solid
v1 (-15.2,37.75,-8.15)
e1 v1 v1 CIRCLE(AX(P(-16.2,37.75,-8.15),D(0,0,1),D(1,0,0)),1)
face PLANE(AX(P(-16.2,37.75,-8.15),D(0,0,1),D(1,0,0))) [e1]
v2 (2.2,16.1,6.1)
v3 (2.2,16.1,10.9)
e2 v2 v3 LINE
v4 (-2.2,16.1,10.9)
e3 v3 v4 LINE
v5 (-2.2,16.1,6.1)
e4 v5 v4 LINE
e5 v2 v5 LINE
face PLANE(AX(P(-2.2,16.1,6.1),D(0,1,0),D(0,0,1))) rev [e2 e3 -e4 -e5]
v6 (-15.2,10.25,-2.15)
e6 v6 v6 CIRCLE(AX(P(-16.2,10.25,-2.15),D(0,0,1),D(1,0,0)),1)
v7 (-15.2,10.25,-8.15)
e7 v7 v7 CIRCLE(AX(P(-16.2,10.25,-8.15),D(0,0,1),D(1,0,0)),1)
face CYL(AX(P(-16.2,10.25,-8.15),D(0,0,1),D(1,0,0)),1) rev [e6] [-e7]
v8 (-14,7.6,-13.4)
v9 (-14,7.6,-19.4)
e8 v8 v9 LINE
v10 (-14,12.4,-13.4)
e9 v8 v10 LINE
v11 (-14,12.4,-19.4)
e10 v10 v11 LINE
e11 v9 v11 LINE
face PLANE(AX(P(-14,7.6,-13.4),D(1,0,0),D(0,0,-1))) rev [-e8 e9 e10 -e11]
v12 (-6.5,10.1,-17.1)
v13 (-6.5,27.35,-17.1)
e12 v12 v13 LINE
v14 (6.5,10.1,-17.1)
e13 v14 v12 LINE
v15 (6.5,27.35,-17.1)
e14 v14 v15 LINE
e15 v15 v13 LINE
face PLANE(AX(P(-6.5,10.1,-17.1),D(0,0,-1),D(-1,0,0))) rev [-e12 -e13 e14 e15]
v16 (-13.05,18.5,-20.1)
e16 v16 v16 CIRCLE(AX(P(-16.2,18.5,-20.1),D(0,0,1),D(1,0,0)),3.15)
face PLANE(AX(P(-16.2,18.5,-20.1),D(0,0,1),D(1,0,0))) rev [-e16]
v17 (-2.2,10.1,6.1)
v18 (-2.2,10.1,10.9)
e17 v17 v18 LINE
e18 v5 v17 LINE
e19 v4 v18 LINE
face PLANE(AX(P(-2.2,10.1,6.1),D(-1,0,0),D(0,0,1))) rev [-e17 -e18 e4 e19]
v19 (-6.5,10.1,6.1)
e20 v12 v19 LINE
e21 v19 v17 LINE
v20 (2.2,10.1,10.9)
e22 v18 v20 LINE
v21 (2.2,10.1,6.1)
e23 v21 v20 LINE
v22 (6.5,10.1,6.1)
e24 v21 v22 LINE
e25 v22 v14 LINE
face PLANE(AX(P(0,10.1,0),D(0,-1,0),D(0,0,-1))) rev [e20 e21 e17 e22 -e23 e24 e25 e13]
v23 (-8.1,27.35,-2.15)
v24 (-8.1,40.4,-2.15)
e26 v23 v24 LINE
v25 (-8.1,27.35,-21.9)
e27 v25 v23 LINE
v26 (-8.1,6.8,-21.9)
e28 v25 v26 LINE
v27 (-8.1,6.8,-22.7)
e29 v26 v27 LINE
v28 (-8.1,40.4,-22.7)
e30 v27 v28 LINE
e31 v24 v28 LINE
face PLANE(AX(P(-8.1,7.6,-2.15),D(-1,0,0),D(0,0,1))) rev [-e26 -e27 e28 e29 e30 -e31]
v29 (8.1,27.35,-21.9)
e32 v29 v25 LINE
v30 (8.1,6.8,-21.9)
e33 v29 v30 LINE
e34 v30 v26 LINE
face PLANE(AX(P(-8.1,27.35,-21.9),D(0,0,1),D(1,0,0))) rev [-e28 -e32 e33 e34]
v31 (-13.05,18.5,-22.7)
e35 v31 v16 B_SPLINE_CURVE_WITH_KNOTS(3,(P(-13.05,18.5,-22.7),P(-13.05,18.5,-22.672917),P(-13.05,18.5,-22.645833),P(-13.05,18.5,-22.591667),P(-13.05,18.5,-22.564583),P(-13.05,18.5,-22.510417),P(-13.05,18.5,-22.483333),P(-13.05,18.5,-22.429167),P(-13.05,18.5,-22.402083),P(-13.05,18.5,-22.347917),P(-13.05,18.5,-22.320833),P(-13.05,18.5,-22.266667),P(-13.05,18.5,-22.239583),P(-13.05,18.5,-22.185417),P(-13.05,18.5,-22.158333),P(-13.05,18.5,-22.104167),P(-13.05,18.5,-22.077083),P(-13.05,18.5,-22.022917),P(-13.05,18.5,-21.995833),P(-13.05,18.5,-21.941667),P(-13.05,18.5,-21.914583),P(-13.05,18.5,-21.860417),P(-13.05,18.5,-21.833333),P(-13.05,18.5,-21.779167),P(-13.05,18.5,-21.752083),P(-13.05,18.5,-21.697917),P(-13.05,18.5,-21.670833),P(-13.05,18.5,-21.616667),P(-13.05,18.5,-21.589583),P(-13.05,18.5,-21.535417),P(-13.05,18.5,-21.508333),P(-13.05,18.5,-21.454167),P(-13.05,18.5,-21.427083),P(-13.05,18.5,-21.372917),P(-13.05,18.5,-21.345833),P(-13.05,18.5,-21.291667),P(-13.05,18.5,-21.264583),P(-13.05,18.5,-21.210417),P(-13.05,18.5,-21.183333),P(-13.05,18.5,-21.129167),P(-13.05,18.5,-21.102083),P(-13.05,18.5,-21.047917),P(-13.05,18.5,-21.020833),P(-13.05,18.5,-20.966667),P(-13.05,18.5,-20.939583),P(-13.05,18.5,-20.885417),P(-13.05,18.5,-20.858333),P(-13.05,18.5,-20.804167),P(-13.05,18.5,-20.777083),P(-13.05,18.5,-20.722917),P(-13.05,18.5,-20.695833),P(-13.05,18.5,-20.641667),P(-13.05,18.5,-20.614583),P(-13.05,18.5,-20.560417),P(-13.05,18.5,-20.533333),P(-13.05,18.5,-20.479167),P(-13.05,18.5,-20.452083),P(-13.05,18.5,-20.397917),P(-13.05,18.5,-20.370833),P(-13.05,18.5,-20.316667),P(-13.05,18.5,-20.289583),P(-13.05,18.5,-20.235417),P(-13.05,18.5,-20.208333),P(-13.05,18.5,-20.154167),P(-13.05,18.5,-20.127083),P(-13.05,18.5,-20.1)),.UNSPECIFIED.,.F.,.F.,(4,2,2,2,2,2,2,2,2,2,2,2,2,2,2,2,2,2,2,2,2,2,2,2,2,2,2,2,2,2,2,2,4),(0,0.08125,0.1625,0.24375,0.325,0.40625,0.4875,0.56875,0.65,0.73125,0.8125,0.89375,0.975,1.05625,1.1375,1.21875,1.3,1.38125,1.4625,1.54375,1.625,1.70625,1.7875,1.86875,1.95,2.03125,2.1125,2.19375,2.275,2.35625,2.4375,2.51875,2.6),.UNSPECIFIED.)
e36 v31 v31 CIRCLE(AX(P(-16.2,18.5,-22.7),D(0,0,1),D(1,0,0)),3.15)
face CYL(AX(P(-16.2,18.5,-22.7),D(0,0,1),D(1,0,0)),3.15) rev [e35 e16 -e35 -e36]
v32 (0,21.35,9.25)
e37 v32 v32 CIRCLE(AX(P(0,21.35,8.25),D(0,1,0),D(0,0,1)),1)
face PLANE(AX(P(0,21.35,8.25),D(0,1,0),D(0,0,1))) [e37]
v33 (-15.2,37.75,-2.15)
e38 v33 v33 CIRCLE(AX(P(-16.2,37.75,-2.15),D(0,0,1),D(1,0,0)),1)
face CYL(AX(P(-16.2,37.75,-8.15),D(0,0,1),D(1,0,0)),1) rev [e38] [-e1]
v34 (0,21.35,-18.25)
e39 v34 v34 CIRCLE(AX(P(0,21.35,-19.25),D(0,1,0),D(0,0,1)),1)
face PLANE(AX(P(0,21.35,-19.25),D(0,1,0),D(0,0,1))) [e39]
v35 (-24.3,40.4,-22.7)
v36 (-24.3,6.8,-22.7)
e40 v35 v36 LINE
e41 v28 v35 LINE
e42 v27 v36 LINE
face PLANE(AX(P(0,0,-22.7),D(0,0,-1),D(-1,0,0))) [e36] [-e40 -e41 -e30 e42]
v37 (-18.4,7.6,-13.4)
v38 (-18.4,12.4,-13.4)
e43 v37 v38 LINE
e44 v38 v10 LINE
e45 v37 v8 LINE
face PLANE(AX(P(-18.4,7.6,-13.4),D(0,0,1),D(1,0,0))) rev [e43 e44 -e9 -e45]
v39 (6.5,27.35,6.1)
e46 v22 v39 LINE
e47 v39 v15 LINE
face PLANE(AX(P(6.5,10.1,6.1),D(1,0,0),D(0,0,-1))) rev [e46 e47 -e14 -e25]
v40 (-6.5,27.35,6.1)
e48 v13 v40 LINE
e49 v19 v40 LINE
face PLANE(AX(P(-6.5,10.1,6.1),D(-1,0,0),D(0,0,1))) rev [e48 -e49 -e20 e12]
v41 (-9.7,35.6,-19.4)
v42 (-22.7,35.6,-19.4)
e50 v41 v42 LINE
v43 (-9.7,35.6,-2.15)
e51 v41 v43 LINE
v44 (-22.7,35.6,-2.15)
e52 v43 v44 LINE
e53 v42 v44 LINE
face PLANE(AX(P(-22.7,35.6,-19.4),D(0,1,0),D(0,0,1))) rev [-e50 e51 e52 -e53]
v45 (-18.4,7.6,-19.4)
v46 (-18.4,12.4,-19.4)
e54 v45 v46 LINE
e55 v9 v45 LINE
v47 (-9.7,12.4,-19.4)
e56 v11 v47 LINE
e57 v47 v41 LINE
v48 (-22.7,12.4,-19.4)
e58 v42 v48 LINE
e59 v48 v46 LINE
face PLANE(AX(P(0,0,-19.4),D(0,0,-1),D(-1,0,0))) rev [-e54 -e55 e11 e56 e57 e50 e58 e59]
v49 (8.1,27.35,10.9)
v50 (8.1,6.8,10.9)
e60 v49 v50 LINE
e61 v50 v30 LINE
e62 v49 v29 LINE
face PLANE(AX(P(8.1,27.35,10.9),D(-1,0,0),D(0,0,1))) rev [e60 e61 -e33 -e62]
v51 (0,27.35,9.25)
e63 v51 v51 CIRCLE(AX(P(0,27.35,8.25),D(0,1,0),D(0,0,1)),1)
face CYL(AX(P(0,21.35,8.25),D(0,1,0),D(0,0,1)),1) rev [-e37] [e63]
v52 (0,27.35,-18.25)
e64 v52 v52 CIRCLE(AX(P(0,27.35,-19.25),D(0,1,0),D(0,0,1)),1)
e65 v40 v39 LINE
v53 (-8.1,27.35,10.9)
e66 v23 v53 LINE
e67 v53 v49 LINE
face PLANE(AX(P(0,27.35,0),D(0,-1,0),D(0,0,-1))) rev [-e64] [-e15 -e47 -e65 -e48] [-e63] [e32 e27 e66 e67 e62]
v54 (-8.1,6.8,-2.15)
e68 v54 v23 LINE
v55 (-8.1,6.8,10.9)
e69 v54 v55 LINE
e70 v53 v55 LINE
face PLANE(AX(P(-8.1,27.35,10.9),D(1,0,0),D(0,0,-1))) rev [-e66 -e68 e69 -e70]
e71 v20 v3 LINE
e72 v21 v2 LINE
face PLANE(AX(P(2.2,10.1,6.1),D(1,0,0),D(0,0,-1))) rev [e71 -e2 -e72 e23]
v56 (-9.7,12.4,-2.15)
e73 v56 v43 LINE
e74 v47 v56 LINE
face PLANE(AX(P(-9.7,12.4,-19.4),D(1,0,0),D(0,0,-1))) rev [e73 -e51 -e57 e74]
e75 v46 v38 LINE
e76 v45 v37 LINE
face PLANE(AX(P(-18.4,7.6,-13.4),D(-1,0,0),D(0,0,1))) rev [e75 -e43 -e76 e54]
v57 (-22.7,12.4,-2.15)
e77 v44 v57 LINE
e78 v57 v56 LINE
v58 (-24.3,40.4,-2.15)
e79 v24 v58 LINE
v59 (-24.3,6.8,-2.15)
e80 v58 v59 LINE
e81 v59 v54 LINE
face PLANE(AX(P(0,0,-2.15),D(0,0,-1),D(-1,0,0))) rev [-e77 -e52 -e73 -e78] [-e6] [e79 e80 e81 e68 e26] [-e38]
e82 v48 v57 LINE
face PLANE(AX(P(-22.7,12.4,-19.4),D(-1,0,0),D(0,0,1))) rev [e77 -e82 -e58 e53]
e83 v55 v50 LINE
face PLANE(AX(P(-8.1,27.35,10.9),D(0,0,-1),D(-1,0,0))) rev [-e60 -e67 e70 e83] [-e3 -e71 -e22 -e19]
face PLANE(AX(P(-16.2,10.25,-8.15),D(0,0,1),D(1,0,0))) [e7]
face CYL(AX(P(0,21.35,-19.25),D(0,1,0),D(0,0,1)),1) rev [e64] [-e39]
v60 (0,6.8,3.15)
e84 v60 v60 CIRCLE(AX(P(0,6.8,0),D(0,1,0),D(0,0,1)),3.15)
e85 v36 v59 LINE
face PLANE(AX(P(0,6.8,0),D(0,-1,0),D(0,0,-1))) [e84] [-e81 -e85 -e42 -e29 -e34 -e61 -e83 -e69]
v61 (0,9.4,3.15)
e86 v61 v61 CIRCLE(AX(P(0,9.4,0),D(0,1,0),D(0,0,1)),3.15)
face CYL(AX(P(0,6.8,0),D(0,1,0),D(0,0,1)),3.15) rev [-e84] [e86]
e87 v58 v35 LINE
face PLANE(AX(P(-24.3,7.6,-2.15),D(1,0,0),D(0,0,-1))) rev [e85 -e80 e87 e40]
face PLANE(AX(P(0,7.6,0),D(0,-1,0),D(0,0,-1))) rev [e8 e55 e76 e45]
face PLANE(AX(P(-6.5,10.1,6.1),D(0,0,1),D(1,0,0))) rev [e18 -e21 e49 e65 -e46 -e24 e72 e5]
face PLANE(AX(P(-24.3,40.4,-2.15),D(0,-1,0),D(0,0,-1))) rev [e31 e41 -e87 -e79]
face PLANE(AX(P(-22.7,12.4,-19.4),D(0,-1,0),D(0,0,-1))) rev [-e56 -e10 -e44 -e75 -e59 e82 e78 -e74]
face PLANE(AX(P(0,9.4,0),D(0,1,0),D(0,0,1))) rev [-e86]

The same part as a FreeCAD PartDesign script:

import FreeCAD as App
import Part
import Sketcher
from FreeCAD import Vector

doc = App.newDocument("Part")
body = doc.addObject("PartDesign::Body", "Body")

sketch1 = body.newObject("Sketcher::SketchObject", "Sketch")
sketch1.AttachmentSupport = (doc.getObject("XZ_Plane"), [""])
sketch1.MapMode = "FlatFace"
sketch1.AttachmentOffset = App.Placement(Vector(0, 0, -17.075), App.Rotation())
sketch1.addGeometry([
    Part.LineSegment(Vector(-8, -22, 0), Vector(-8, 11, 0)),
    Part.LineSegment(Vector(-8, 11, 0), Vector(8, 11, 0)),
    Part.LineSegment(Vector(8, 11, 0), Vector(8, -22, 0)),
    Part.LineSegment(Vector(8, -22, 0), Vector(-8, -22, 0)),
], False)
sketch1.addConstraint([
    Sketcher.Constraint("Coincident", 0, 2, 1, 1),
    Sketcher.Constraint("Coincident", 1, 2, 2, 1),
    Sketcher.Constraint("Coincident", 2, 2, 3, 1),
    Sketcher.Constraint("Coincident", 3, 2, 0, 1),
    Sketcher.Constraint("Vertical", 0),
    Sketcher.Constraint("Horizontal", 1),
    Sketcher.Constraint("Vertical", 2),
    Sketcher.Constraint("Horizontal", 3),
    Sketcher.Constraint("DistanceX", 1, 1, 1, 2, 16.2),
    Sketcher.Constraint("DistanceY", 0, 1, 0, 2, 32.8),
    Sketcher.Constraint("DistanceX", 0, 2, -1, 1, 8.1),
    Sketcher.Constraint("DistanceY", -1, 1, 0, 2, 10.9),
])
pad1 = body.newObject("PartDesign::Pad", "Pad")
pad1.Profile = sketch1
pad1.Length = 20.55
pad1.Midplane = True

sketch2 = body.newObject("Sketcher::SketchObject", "Sketch001")
sketch2.AttachmentSupport = (doc.getObject("XY_Plane"), [""])
sketch2.MapMode = "FlatFace"
sketch2.AttachmentOffset = App.Placement(Vector(0, 0, -12.425), App.Rotation())
sketch2.addGeometry([
    Part.LineSegment(Vector(-24, 40, 0), Vector(-24, 8, 0)),
    Part.LineSegment(Vector(-24, 8, 0), Vector(-8, 8, 0)),
    Part.LineSegment(Vector(-8, 8, 0), Vector(-8, 40, 0)),
    Part.LineSegment(Vector(-8, 40, 0), Vector(-24, 40, 0)),
], False)
sketch2.addConstraint([
    Sketcher.Constraint("Coincident", 0, 2, 1, 1),
    Sketcher.Constraint("Coincident", 1, 2, 2, 1),
    Sketcher.Constraint("Coincident", 2, 2, 3, 1),
    Sketcher.Constraint("Coincident", 3, 2, 0, 1),
    Sketcher.Constraint("Vertical", 0),
    Sketcher.Constraint("Horizontal", 1),
    Sketcher.Constraint("Vertical", 2),
    Sketcher.Constraint("Horizontal", 3),
    Sketcher.Constraint("DistanceX", 1, 1, 1, 2, 16.2),
    Sketcher.Constraint("DistanceY", 0, 2, 0, 1, 32.8),
    Sketcher.Constraint("DistanceX", 0, 2, -1, 1, 24.3),
    Sketcher.Constraint("DistanceY", -1, 1, 0, 2, 7.6),
])
pad2 = body.newObject("PartDesign::Pad", "Pad001")
pad2.Profile = sketch2
pad2.Length = 20.55
pad2.Midplane = True

sketch3 = body.newObject("Sketcher::SketchObject", "Sketch002")
sketch3.AttachmentSupport = (doc.getObject("XZ_Plane"), [""])
sketch3.MapMode = "FlatFace"
sketch3.AttachmentOffset = App.Placement(Vector(0, 0, -7.3), App.Rotation())
sketch3.addGeometry([
    Part.LineSegment(Vector(-24, -23, 0), Vector(-24, -2, 0)),
    Part.LineSegment(Vector(-24, -2, 0), Vector(-8, -2, 0)),
    Part.LineSegment(Vector(-8, -2, 0), Vector(-8, -23, 0)),
    Part.LineSegment(Vector(-8, -23, 0), Vector(-24, -23, 0)),
], False)
sketch3.addConstraint([
    Sketcher.Constraint("Coincident", 0, 2, 1, 1),
    Sketcher.Constraint("Coincident", 1, 2, 2, 1),
    Sketcher.Constraint("Coincident", 2, 2, 3, 1),
    Sketcher.Constraint("Coincident", 3, 2, 0, 1),
    Sketcher.Constraint("Vertical", 0),
    Sketcher.Constraint("Horizontal", 1),
    Sketcher.Constraint("Vertical", 2),
    Sketcher.Constraint("Horizontal", 3),
    Sketcher.Constraint("DistanceX", 1, 1, 1, 2, 16.2),
    Sketcher.Constraint("DistanceY", 0, 1, 0, 2, 20.55),
    Sketcher.Constraint("DistanceX", 0, 2, -1, 1, 24.3),
    Sketcher.Constraint("DistanceY", 2, 2, -1, 1, 22.7),
])
pad3 = body.newObject("PartDesign::Pad", "Pad002")
pad3.Profile = sketch3
pad3.Length = 1
pad3.Midplane = True

sketch4 = body.newObject("Sketcher::SketchObject", "Sketch003")
sketch4.AttachmentSupport = (doc.getObject("XZ_Plane"), [""])
sketch4.MapMode = "FlatFace"
sketch4.AttachmentOffset = App.Placement(Vector(0, 0, -18.725), App.Rotation())
sketch4.addGeometry([
    Part.LineSegment(Vector(-6, -17, 0), Vector(-6, 6, 0)),
    Part.LineSegment(Vector(-6, 6, 0), Vector(6, 6, 0)),
    Part.LineSegment(Vector(6, 6, 0), Vector(6, -17, 0)),
    Part.LineSegment(Vector(6, -17, 0), Vector(-6, -17, 0)),
], False)
sketch4.addConstraint([
    Sketcher.Constraint("Coincident", 0, 2, 1, 1),
    Sketcher.Constraint("Coincident", 1, 2, 2, 1),
    Sketcher.Constraint("Coincident", 2, 2, 3, 1),
    Sketcher.Constraint("Coincident", 3, 2, 0, 1),
    Sketcher.Constraint("Vertical", 0),
    Sketcher.Constraint("Horizontal", 1),
    Sketcher.Constraint("Vertical", 2),
    Sketcher.Constraint("Horizontal", 3),
    Sketcher.Constraint("DistanceX", 1, 1, 1, 2, 13.0),
    Sketcher.Constraint("DistanceY", 0, 1, 0, 2, 23.2),
    Sketcher.Constraint("DistanceX", 0, 2, -1, 1, 6.5),
    Sketcher.Constraint("DistanceY", -1, 1, 0, 2, 6.1),
])
pocket1 = body.newObject("PartDesign::Pocket", "Pocket")
pocket1.Profile = sketch4
pocket1.Length = 17.25
pocket1.Midplane = True

sketch5 = body.newObject("Sketcher::SketchObject", "Sketch004")
sketch5.AttachmentSupport = (doc.getObject("XZ_Plane"), [""])
sketch5.MapMode = "FlatFace"
sketch5.AttachmentOffset = App.Placement(Vector(0, 0, -24.35), App.Rotation())
sketch5.addGeometry(Part.Circle(Vector(0, -19.2, 0), Vector(0, 0, 1), 1), False)
sketch5.addConstraint([
    Sketcher.Constraint("PointOnObject", 0, 3, -2),
    Sketcher.Constraint("Diameter", 0, 2.0),
    Sketcher.Constraint("DistanceY", 0, 3, -1, 1, 19.25),
])
pocket2 = body.newObject("PartDesign::Pocket", "Pocket001")
pocket2.Profile = sketch5
pocket2.Length = 6
pocket2.Midplane = True

sketch6 = body.newObject("Sketcher::SketchObject", "Sketch005")
sketch6.AttachmentSupport = (doc.getObject("XZ_Plane"), [""])
sketch6.MapMode = "FlatFace"
sketch6.AttachmentOffset = App.Placement(Vector(0, 0, -24.35), App.Rotation())
sketch6.addGeometry(Part.Circle(Vector(0, 8.2, 0), Vector(0, 0, 1), 1), False)
sketch6.addConstraint([
    Sketcher.Constraint("PointOnObject", 0, 3, -2),
    Sketcher.Constraint("Diameter", 0, 2.0),
    Sketcher.Constraint("DistanceY", -1, 1, 0, 3, 8.25),
])
pocket3 = body.newObject("PartDesign::Pocket", "Pocket002")
pocket3.Profile = sketch6
pocket3.Length = 6
pocket3.Midplane = True

sketch7 = body.newObject("Sketcher::SketchObject", "Sketch006")
sketch7.AttachmentSupport = (doc.getObject("XZ_Plane"), [""])
sketch7.MapMode = "FlatFace"
sketch7.AttachmentOffset = App.Placement(Vector(0, 0, -8.1), App.Rotation())
sketch7.addGeometry(Part.Circle(Vector(0, 0, 0), Vector(0, 0, 1), 3.1), False)
sketch7.addConstraint([
    Sketcher.Constraint("Coincident", 0, 3, -1, 1),
    Sketcher.Constraint("Diameter", 0, 6.3),
])
pocket4 = body.newObject("PartDesign::Pocket", "Pocket003")
pocket4.Profile = sketch7
pocket4.Length = 2.6
pocket4.Midplane = True

sketch8 = body.newObject("Sketcher::SketchObject", "Sketch007")
sketch8.AttachmentSupport = (doc.getObject("XY_Plane"), [""])
sketch8.MapMode = "FlatFace"
sketch8.AttachmentOffset = App.Placement(Vector(0, 0, 8.5), App.Rotation())
sketch8.addGeometry([
    Part.LineSegment(Vector(-2.2, 16.1, 0), Vector(-2.2, 10.1, 0)),
    Part.LineSegment(Vector(-2.2, 10.1, 0), Vector(2.2, 10.1, 0)),
    Part.LineSegment(Vector(2.2, 10.1, 0), Vector(2.2, 16.1, 0)),
    Part.LineSegment(Vector(2.2, 16.1, 0), Vector(-2.2, 16.1, 0)),
], False)
sketch8.addConstraint([
    Sketcher.Constraint("Coincident", 0, 2, 1, 1),
    Sketcher.Constraint("Coincident", 1, 2, 2, 1),
    Sketcher.Constraint("Coincident", 2, 2, 3, 1),
    Sketcher.Constraint("Coincident", 3, 2, 0, 1),
    Sketcher.Constraint("Vertical", 0),
    Sketcher.Constraint("Horizontal", 1),
    Sketcher.Constraint("Vertical", 2),
    Sketcher.Constraint("Horizontal", 3),
    Sketcher.Constraint("DistanceY", 0, 2, 0, 1, 6.0),
    Sketcher.Constraint("DistanceX", 1, 1, 1, 2, 4.4),
    Sketcher.Constraint("DistanceX", 0, 2, -1, 1, 2.2),
    Sketcher.Constraint("DistanceY", -1, 1, 0, 2, 10.1),
])
pocket5 = body.newObject("PartDesign::Pocket", "Pocket004")
pocket5.Profile = sketch8
pocket5.Length = 4.8
pocket5.Midplane = True

sketch9 = body.newObject("Sketcher::SketchObject", "Sketch008")
sketch9.AttachmentSupport = (doc.getObject("XY_Plane"), [""])
sketch9.MapMode = "FlatFace"
sketch9.AttachmentOffset = App.Placement(Vector(0, 0, -10.775), App.Rotation())
sketch9.addGeometry([
    Part.LineSegment(Vector(-23, 36, 0), Vector(-23, 12, 0)),
    Part.LineSegment(Vector(-23, 12, 0), Vector(-10, 12, 0)),
    Part.LineSegment(Vector(-10, 12, 0), Vector(-10, 36, 0)),
    Part.LineSegment(Vector(-10, 36, 0), Vector(-23, 36, 0)),
], False)
sketch9.addConstraint([
    Sketcher.Constraint("Coincident", 0, 2, 1, 1),
    Sketcher.Constraint("Coincident", 1, 2, 2, 1),
    Sketcher.Constraint("Coincident", 2, 2, 3, 1),
    Sketcher.Constraint("Coincident", 3, 2, 0, 1),
    Sketcher.Constraint("Vertical", 0),
    Sketcher.Constraint("Horizontal", 1),
    Sketcher.Constraint("Vertical", 2),
    Sketcher.Constraint("Horizontal", 3),
    Sketcher.Constraint("DistanceX", 1, 1, 1, 2, 13.0),
    Sketcher.Constraint("DistanceY", 0, 2, 0, 1, 23.2),
    Sketcher.Constraint("DistanceX", 0, 2, -1, 1, 22.7),
    Sketcher.Constraint("DistanceY", -1, 1, 0, 2, 12.4),
])
pocket6 = body.newObject("PartDesign::Pocket", "Pocket005")
pocket6.Profile = sketch9
pocket6.Length = 17.25
pocket6.Midplane = True

sketch10 = body.newObject("Sketcher::SketchObject", "Sketch009")
sketch10.AttachmentSupport = (doc.getObject("XY_Plane"), [""])
sketch10.MapMode = "FlatFace"
sketch10.AttachmentOffset = App.Placement(Vector(0, 0, -5.15), App.Rotation())
sketch10.addGeometry(Part.Circle(Vector(-16.2, 37.8, 0), Vector(0, 0, 1), 1), False)
sketch10.addConstraint([
    Sketcher.Constraint("Diameter", 0, 2.0),
    Sketcher.Constraint("DistanceX", 0, 3, -1, 1, 16.2),
    Sketcher.Constraint("DistanceY", -1, 1, 0, 3, 37.75),
])
pocket7 = body.newObject("PartDesign::Pocket", "Pocket006")
pocket7.Profile = sketch10
pocket7.Length = 6
pocket7.Midplane = True

sketch11 = body.newObject("Sketcher::SketchObject", "Sketch010")
sketch11.AttachmentSupport = (doc.getObject("XY_Plane"), [""])
sketch11.MapMode = "FlatFace"
sketch11.AttachmentOffset = App.Placement(Vector(0, 0, -5.15), App.Rotation())
sketch11.addGeometry(Part.Circle(Vector(-16.2, 10.2, 0), Vector(0, 0, 1), 1), False)
sketch11.addConstraint([
    Sketcher.Constraint("Diameter", 0, 2.0),
    Sketcher.Constraint("DistanceX", 0, 3, -1, 1, 16.2),
    Sketcher.Constraint("DistanceY", -1, 1, 0, 3, 10.25),
])
pocket8 = body.newObject("PartDesign::Pocket", "Pocket007")
pocket8.Profile = sketch11
pocket8.Length = 6
pocket8.Midplane = True

sketch12 = body.newObject("Sketcher::SketchObject", "Sketch011")
sketch12.AttachmentSupport = (doc.getObject("XY_Plane"), [""])
sketch12.MapMode = "FlatFace"
sketch12.AttachmentOffset = App.Placement(Vector(0, 0, -21.4), App.Rotation())
sketch12.addGeometry(Part.Circle(Vector(-16.2, 18.5, 0), Vector(0, 0, 1), 3.1), False)
sketch12.addConstraint([
    Sketcher.Constraint("Diameter", 0, 6.3),
    Sketcher.Constraint("DistanceX", 0, 3, -1, 1, 16.2),
    Sketcher.Constraint("DistanceY", -1, 1, 0, 3, 18.5),
])
pocket9 = body.newObject("PartDesign::Pocket", "Pocket008")
pocket9.Profile = sketch12
pocket9.Length = 2.6
pocket9.Midplane = True

sketch13 = body.newObject("Sketcher::SketchObject", "Sketch012")
sketch13.AttachmentSupport = (doc.getObject("XZ_Plane"), [""])
sketch13.MapMode = "FlatFace"
sketch13.AttachmentOffset = App.Placement(Vector(0, 0, -10), App.Rotation())
sketch13.addGeometry([
    Part.LineSegment(Vector(-18.4, -19.4, 0), Vector(-18.4, -13.4, 0)),
    Part.LineSegment(Vector(-18.4, -13.4, 0), Vector(-14, -13.4, 0)),
    Part.LineSegment(Vector(-14, -13.4, 0), Vector(-14, -19.4, 0)),
    Part.LineSegment(Vector(-14, -19.4, 0), Vector(-18.4, -19.4, 0)),
], False)
sketch13.addConstraint([
    Sketcher.Constraint("Coincident", 0, 2, 1, 1),
    Sketcher.Constraint("Coincident", 1, 2, 2, 1),
    Sketcher.Constraint("Coincident", 2, 2, 3, 1),
    Sketcher.Constraint("Coincident", 3, 2, 0, 1),
    Sketcher.Constraint("Vertical", 0),
    Sketcher.Constraint("Horizontal", 1),
    Sketcher.Constraint("Vertical", 2),
    Sketcher.Constraint("Horizontal", 3),
    Sketcher.Constraint("DistanceY", 0, 1, 0, 2, 6.0),
    Sketcher.Constraint("DistanceX", 1, 1, 1, 2, 4.4),
    Sketcher.Constraint("DistanceX", 1, 2, -1, 1, 14.0),
    Sketcher.Constraint("DistanceY", 0, 2, -1, 1, 13.4),
])
pocket10 = body.newObject("PartDesign::Pocket", "Pocket009")
pocket10.Profile = sketch13
pocket10.Length = 4.8
pocket10.Midplane = True

doc.recompute()
